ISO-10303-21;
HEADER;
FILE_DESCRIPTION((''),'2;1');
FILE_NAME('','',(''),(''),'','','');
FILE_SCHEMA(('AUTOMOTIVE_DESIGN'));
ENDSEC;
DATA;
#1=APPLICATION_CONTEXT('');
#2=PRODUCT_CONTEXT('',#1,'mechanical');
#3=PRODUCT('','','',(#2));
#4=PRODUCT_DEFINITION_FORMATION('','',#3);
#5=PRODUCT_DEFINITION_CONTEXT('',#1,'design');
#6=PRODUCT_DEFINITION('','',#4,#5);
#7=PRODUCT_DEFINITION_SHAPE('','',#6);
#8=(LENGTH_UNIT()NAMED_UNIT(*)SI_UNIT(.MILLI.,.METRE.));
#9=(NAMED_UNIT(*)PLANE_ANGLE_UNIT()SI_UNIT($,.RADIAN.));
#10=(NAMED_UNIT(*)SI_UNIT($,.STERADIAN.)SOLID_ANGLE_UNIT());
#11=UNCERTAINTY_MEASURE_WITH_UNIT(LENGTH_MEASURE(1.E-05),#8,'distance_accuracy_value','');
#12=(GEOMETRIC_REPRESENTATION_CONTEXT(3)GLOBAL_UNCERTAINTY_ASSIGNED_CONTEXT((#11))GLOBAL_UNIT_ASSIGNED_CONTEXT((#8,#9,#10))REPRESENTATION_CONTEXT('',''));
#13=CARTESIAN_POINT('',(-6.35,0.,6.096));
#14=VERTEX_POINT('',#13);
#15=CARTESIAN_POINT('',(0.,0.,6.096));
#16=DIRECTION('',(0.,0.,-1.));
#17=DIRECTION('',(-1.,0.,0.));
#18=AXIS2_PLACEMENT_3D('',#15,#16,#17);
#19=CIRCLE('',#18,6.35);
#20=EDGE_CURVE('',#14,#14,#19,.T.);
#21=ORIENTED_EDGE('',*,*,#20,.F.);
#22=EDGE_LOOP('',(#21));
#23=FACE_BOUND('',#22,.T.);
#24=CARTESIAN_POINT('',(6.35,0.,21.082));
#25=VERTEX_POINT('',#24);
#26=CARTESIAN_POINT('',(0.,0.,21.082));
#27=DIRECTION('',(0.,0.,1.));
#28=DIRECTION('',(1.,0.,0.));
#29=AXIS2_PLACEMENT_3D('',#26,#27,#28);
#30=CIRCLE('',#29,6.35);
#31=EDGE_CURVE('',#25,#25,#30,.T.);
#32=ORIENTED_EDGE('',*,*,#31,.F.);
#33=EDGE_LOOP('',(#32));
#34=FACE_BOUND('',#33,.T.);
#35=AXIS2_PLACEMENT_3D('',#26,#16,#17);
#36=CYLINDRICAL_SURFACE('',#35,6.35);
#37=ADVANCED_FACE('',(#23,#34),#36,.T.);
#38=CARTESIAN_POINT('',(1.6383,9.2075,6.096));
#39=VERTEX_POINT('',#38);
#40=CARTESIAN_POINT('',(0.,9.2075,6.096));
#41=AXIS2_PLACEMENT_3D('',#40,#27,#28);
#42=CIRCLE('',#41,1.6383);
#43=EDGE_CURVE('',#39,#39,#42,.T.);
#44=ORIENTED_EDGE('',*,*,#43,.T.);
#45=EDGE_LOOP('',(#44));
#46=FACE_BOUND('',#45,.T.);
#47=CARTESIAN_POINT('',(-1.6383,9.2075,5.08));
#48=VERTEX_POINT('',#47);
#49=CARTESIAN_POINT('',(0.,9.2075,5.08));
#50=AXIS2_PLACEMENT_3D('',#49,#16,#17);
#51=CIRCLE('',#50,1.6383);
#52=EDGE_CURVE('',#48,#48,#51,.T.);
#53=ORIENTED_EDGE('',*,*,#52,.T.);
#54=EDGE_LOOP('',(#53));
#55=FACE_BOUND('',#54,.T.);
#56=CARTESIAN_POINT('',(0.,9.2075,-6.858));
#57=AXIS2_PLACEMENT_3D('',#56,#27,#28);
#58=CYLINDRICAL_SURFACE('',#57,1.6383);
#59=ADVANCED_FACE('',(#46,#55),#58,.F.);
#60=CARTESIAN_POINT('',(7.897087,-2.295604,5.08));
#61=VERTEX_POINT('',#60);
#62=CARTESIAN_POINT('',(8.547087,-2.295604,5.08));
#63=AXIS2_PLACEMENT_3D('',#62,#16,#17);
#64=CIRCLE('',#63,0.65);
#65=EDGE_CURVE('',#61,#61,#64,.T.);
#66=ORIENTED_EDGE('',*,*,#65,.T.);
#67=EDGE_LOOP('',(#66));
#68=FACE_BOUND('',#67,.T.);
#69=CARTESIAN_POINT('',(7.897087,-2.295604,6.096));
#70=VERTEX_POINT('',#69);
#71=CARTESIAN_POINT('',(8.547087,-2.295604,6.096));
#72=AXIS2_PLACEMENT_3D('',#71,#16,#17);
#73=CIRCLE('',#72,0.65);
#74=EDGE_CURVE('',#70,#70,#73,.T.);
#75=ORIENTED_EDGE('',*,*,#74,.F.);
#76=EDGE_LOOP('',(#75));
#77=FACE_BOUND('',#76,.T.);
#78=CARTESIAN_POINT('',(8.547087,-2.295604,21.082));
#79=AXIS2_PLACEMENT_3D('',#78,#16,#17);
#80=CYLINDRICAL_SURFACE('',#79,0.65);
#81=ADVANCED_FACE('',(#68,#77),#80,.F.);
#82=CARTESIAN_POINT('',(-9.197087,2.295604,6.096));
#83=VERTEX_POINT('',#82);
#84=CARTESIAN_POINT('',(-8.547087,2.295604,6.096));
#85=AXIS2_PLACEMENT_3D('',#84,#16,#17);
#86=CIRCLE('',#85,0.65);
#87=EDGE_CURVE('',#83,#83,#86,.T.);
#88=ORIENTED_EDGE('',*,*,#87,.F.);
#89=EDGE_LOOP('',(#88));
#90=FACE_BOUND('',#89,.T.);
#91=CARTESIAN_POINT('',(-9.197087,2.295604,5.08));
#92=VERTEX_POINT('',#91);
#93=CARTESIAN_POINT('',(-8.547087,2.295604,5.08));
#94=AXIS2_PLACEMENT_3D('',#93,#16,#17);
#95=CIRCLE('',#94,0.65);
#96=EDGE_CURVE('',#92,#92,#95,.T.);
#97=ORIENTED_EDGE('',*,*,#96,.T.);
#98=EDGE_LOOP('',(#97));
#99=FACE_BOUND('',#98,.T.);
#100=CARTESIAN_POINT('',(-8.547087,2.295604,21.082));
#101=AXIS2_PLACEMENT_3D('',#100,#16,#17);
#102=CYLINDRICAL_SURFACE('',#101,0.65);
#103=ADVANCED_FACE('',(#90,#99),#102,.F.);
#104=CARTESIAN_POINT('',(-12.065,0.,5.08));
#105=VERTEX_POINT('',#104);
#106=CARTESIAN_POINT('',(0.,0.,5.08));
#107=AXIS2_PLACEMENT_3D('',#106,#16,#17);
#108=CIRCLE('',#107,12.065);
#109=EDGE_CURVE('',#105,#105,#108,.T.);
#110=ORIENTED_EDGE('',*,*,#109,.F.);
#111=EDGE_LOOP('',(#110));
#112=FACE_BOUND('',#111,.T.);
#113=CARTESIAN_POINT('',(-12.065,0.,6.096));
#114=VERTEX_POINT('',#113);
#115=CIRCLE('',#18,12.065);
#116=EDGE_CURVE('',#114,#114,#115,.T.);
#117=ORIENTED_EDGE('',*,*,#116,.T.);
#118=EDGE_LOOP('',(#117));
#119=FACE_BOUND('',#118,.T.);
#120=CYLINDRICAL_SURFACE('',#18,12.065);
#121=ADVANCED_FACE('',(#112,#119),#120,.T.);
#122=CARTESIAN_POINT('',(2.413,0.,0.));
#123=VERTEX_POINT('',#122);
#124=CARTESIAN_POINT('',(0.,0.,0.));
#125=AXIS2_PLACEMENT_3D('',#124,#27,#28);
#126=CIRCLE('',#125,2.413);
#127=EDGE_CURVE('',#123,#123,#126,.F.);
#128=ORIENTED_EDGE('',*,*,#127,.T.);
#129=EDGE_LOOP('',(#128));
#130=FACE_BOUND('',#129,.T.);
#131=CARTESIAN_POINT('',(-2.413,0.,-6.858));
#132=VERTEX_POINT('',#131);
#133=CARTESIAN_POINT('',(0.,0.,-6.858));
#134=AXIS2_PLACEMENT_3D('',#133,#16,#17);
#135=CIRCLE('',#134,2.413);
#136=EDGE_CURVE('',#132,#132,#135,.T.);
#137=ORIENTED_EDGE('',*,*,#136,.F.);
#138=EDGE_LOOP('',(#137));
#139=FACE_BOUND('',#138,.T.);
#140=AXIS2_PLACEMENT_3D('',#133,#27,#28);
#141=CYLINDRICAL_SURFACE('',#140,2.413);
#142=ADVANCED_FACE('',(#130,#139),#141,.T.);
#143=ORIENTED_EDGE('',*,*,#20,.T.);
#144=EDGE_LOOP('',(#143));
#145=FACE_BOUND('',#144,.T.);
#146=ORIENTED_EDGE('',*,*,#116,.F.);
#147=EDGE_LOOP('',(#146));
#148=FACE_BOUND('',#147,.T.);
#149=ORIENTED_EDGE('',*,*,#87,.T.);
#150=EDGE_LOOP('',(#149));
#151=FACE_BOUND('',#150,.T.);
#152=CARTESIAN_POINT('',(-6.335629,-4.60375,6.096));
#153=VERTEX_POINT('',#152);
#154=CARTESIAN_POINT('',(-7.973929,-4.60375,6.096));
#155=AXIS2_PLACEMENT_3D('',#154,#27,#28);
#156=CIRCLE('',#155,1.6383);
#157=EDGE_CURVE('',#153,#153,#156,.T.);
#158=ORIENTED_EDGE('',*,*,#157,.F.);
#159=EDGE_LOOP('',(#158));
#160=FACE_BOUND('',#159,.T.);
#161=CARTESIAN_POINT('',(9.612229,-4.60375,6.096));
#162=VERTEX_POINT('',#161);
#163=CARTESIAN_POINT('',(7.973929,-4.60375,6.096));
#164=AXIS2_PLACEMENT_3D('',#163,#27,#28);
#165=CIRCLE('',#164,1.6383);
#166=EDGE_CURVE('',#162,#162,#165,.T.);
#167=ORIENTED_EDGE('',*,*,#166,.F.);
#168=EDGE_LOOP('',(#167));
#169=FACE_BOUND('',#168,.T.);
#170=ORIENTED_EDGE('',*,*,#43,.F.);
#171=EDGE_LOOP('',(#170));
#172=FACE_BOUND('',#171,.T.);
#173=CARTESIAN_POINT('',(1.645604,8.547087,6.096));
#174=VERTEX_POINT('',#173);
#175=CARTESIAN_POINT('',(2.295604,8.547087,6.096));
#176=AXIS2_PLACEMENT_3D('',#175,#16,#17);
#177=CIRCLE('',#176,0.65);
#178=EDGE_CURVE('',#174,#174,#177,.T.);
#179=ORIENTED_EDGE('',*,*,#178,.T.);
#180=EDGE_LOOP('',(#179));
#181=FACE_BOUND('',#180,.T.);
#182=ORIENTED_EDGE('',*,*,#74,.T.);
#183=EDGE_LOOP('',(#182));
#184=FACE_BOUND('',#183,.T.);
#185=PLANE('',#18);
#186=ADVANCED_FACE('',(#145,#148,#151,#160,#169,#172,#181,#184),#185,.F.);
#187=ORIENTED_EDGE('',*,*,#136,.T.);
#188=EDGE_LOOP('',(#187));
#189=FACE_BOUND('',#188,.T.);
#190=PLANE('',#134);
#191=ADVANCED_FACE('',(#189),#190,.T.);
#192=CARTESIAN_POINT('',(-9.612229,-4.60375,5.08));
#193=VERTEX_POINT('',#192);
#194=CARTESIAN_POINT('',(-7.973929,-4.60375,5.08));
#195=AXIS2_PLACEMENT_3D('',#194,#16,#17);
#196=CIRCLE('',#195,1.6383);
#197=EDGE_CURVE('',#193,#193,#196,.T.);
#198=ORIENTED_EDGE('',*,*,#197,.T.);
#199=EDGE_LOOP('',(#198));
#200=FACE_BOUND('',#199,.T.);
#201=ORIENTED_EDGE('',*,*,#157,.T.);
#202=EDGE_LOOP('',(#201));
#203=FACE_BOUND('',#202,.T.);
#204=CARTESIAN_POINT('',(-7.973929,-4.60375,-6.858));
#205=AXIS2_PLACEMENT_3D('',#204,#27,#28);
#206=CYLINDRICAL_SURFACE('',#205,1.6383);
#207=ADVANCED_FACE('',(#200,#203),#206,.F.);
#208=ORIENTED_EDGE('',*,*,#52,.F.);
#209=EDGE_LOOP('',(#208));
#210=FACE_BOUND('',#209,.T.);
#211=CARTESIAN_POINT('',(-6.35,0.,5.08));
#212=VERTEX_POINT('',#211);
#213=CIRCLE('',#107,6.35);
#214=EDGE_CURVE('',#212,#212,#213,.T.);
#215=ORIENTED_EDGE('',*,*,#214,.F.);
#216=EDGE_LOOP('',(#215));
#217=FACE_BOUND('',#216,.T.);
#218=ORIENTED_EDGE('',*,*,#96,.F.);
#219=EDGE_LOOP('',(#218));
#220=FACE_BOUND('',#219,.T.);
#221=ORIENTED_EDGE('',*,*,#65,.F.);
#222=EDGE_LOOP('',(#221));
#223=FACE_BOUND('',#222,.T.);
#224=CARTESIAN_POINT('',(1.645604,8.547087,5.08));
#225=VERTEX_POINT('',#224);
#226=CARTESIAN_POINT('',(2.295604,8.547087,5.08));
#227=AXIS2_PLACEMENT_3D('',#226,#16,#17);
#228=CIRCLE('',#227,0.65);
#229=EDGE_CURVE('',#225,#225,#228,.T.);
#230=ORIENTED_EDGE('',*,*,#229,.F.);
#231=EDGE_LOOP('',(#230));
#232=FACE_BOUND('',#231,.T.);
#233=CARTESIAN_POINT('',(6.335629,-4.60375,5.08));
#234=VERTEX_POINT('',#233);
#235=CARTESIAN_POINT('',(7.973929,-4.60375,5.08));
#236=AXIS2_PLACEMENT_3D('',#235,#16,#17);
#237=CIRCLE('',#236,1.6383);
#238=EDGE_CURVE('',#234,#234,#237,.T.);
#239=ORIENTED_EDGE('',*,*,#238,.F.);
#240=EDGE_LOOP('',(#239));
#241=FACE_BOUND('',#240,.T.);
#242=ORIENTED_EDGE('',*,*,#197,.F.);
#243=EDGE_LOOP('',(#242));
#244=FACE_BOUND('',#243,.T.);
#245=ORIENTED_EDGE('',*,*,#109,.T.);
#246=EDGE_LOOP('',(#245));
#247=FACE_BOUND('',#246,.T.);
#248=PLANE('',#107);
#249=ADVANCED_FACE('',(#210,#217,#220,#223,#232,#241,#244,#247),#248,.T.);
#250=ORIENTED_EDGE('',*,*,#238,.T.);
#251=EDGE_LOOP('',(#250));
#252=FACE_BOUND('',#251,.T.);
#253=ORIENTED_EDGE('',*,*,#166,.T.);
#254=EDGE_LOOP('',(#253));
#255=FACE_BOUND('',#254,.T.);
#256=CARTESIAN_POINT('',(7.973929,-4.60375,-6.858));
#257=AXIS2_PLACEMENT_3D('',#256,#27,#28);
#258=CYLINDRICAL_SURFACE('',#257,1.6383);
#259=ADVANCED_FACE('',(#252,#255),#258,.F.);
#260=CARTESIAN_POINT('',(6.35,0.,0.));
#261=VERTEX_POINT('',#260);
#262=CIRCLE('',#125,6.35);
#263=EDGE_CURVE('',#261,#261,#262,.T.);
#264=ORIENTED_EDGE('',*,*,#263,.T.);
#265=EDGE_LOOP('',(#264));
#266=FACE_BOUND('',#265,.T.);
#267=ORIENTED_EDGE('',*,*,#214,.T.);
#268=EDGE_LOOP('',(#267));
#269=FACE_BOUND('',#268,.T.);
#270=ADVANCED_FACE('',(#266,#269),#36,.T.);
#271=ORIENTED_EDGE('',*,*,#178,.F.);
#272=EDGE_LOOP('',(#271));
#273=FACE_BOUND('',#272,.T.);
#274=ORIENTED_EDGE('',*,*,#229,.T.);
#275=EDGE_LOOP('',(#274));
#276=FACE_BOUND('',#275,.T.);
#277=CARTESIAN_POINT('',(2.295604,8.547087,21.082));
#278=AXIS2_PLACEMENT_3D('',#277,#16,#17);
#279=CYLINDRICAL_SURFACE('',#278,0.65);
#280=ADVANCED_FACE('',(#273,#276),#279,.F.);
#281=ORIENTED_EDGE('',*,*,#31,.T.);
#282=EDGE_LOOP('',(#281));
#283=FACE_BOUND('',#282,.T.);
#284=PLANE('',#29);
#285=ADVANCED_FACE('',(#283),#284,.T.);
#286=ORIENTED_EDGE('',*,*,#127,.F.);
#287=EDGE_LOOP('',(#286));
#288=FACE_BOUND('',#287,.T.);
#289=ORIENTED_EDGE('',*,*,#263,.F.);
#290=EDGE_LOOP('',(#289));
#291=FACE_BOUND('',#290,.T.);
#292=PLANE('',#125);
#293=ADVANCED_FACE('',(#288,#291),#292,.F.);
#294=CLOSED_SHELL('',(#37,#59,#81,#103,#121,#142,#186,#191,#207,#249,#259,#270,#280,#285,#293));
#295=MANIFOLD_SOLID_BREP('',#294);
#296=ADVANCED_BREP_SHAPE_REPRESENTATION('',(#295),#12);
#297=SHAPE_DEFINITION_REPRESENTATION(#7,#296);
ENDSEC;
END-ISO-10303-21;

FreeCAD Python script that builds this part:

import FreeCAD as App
import Part
import Sketcher

V = App.Vector
Q = App.Units.Quantity

doc = App.newDocument("Part")
body = doc.addObject("PartDesign::Body", "Body")

sketch1 = body.newObject("Sketcher::SketchObject", "Sketch")
sketch1.AttachmentSupport = (doc.getObject("XY_Plane"), [""])
sketch1.MapMode = "FlatFace"
sketch1.addGeometry(Part.Circle(V(0, 0, 0), V(0, 0, 1), 6.35), False)
sketch1.addConstraint([
    Sketcher.Constraint("Coincident", 0, 3, -1, 1),
    Sketcher.Constraint("Diameter", 0, Q("0.5 in")),
])
pad1 = body.newObject("PartDesign::Pad", "Pad")
pad1.Profile = sketch1
pad1.Length = Q("0.83 in")

sketch2 = body.newObject("Sketcher::SketchObject", "Sketch001")
sketch2.AttachmentSupport = (doc.getObject("XY_Plane"), [""])
sketch2.MapMode = "FlatFace"
sketch2.addGeometry(Part.Circle(V(0, 0, 0), V(0, 0, 1), 2.413), False)
sketch2.addConstraint([
    Sketcher.Constraint("Coincident", 0, 3, -1, 1),
    Sketcher.Constraint("Diameter", 0, Q("0.19 in")),
])
pad2 = body.newObject("PartDesign::Pad", "Pad001")
pad2.Profile = sketch2
pad2.Length = Q("0.27 in")
pad2.Reversed = True

sketch3 = body.newObject("Sketcher::SketchObject", "Sketch002")
sketch3.AttachmentSupport = (doc.getObject("XY_Plane"), [""])
sketch3.MapMode = "FlatFace"
sketch3.AttachmentOffset = App.Placement(V(0, 0, 0.2 * 25.4), App.Rotation())
sketch3.addGeometry(Part.Circle(V(0, 0, 0), V(0, 0, 1), 12.065), False)
sketch3.addConstraint([
    Sketcher.Constraint("Coincident", 0, 3, -1, 1),
    Sketcher.Constraint("Diameter", 0, Q("0.95 in")),
])
pad3 = body.newObject("PartDesign::Pad", "Pad002")
pad3.Profile = sketch3
pad3.Length = Q("0.04 in")

sketch4 = body.newObject("Sketcher::SketchObject", "Sketch003")
sketch4.AttachmentSupport = (doc.getObject("XY_Plane"), [""])
sketch4.MapMode = "FlatFace"
sketch4.AttachmentOffset = App.Placement(V(0, 0, 0.24 * 25.4), App.Rotation())
sketch4.addGeometry([
    Part.Circle(V(0, 9.2075, 0), V(0, 0, 1), 1.6383),
    Part.Circle(V(7.973929, -4.60375, 0), V(0, 0, 1), 1.6383),
    Part.Circle(V(-7.973929, -4.60375, 0), V(0, 0, 1), 1.6383),
], False)
sketch4.addConstraint([
    Sketcher.Constraint("Equal", 0, 1),
    Sketcher.Constraint("Equal", 1, 2),
    Sketcher.Constraint("Symmetric", 1, 3, 2, 3, -2),
    Sketcher.Constraint("PointOnObject", 0, 3, -2),
    Sketcher.Constraint("Diameter", 0, Q("0.129 in")),
    Sketcher.Constraint("DistanceY", -1, 1, 0, 3, Q("0.3625 in")),
    Sketcher.Constraint("DistanceX", -1, 1, 1, 3, 7.973929),
    Sketcher.Constraint("DistanceY", 1, 3, -1, 1, 4.60375),
])
pocket1 = body.newObject("PartDesign::Pocket", "Pocket")
pocket1.Profile = sketch4
pocket1.Type = "ThroughAll"

sketch5 = body.newObject("Sketcher::SketchObject", "Sketch004")
sketch5.AttachmentSupport = (doc.getObject("XY_Plane"), [""])
sketch5.MapMode = "FlatFace"
sketch5.AttachmentOffset = App.Placement(V(0, 0, 0.2 * 25.4), App.Rotation())
sketch5.addGeometry([
    Part.Circle(V(8.547087, -2.295604, 0), V(0, 0, 1), 0.65),
    Part.Circle(V(2.295604, 8.547087, 0), V(0, 0, 1), 0.65),
    Part.Circle(V(-8.547087, 2.295604, 0), V(0, 0, 1), 0.65),
], False)
sketch5.addConstraint([
    Sketcher.Constraint("Equal", 0, 1),
    Sketcher.Constraint("Equal", 1, 2),
    Sketcher.Constraint("Symmetric", 0, 3, 2, 3, -1, 1),
    Sketcher.Constraint("Diameter", 0, 1.3),
    Sketcher.Constraint("DistanceY", 0, 3, 1, 3, 10.842691),
    Sketcher.Constraint("DistanceX", 2, 3, 1, 3, 10.842691),
    Sketcher.Constraint("DistanceX", -1, 1, 0, 3, 8.547087),
    Sketcher.Constraint("DistanceY", 0, 3, -1, 1, 2.295604),
])
pocket2 = body.newObject("PartDesign::Pocket", "Pocket001")
pocket2.Profile = sketch5
pocket2.Type = "ThroughAll"
pocket2.Reversed = True

doc.recompute()
